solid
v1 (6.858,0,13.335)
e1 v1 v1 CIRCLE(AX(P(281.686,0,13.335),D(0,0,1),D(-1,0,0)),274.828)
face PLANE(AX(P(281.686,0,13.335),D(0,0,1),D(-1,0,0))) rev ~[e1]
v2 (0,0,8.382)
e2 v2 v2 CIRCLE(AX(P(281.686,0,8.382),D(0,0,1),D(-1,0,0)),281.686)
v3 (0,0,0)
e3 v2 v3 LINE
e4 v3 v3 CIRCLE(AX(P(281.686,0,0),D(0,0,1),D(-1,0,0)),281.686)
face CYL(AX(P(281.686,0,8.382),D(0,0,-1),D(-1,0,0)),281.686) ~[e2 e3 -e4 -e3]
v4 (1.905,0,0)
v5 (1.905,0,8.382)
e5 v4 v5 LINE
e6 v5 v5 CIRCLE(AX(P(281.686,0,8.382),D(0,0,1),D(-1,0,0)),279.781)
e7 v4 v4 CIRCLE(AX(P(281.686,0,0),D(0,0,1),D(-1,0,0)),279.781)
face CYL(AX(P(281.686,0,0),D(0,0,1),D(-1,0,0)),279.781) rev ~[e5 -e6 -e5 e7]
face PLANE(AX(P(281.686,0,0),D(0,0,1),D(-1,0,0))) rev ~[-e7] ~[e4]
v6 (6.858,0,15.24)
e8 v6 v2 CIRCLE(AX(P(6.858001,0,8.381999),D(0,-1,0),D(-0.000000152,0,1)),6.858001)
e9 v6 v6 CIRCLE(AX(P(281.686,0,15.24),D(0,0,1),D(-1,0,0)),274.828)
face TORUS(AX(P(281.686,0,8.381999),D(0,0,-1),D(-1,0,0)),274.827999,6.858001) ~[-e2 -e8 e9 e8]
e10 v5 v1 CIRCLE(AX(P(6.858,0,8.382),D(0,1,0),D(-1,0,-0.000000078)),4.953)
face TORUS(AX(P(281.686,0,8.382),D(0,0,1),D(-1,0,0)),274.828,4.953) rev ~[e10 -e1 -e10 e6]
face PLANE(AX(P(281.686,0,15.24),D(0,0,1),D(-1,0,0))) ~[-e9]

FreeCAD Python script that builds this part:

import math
import FreeCAD as App
import Part
import Sketcher
from FreeCAD import Vector
Q = App.Units.Quantity

doc = App.newDocument("Part")
body = doc.addObject("PartDesign::Body", "Body")

# Sketch on XZ plane
sketch1 = doc.addObject("Sketcher::SketchObject", "Sketch")
body.addObject(sketch1)
sketch1.AttachmentSupport = (doc.XZ_Plane, [""])
sketch1.MapMode = "FlatFace"
sketch1.addGeometry([
    Part.LineSegment(Vector(0, 8.4, 0), Vector(0, 0, 0)),  # 0
    Part.LineSegment(Vector(0, 0, 0), Vector(1.9, 0, 0)),  # 1
    Part.LineSegment(Vector(1.9, 0, 0), Vector(1.9, 8.4, 0)),  # 2
    Part.ArcOfCircle(Part.Circle(Vector(6.9, 8.4, 0), Vector(0, 0, 1), 5), math.radians(90), math.radians(180)),  # 3
    Part.LineSegment(Vector(6.9, 13.3, 0), Vector(281.7, 13.3, 0)),  # 4
    Part.LineSegment(Vector(281.7, 13.3, 0), Vector(281.7, 15.2, 0)),  # 5
    Part.LineSegment(Vector(281.7, 15.2, 0), Vector(6.9, 15.2, 0)),  # 6
    Part.ArcOfCircle(Part.Circle(Vector(6.9, 8.4, 0), Vector(0, 0, 1), 6.9), math.radians(90), math.radians(180)),  # 7
], False)
sketch1.addGeometry(Part.LineSegment(Vector(281.7, 0, 0), Vector(281.7, 15.2, 0)), True)  # axis
sketch1.addConstraint([
    Sketcher.Constraint("Coincident", 0, 2, 1, 1),
    Sketcher.Constraint("Coincident", 1, 2, 2, 1),
    Sketcher.Constraint("Tangent", 2, 2, 3, 2),
    Sketcher.Constraint("Tangent", 3, 1, 4, 1),
    Sketcher.Constraint("Coincident", 4, 2, 5, 1),
    Sketcher.Constraint("Coincident", 5, 2, 6, 1),
    Sketcher.Constraint("Tangent", 6, 2, 7, 1),
    Sketcher.Constraint("Tangent", 7, 2, 0, 1),
    Sketcher.Constraint("Vertical", 0),
    Sketcher.Constraint("Horizontal", 1),
    Sketcher.Constraint("Vertical", 2),
    Sketcher.Constraint("Horizontal", 4),
    Sketcher.Constraint("Vertical", 5),
    Sketcher.Constraint("Horizontal", 6),
    Sketcher.Constraint("Vertical", 8),
    Sketcher.Constraint("Coincident", 0, 2, -1, 1),
    Sketcher.Constraint("Coincident", 7, 3, 3, 3),
    Sketcher.Constraint("Coincident", 8, 2, 5, 2),
    Sketcher.Constraint("PointOnObject", 8, 1, -1),
    Sketcher.Constraint("Radius", 7, Q("0.27 in")),
    Sketcher.Constraint("DistanceY", 8, 1, 8, 2, Q("0.6 in")),
    Sketcher.Constraint("Radius", 3, Q("0.195 in")),
    Sketcher.Constraint("DistanceX", 4, 1, 4, 2, Q("10.82 in")),
])
revolution = doc.addObject("PartDesign::Revolution", "Revolution")
body.addObject(revolution)
revolution.Profile = sketch1
revolution.ReferenceAxis = (sketch1, ["Axis0"])
revolution.Angle = 360

doc.recompute()
